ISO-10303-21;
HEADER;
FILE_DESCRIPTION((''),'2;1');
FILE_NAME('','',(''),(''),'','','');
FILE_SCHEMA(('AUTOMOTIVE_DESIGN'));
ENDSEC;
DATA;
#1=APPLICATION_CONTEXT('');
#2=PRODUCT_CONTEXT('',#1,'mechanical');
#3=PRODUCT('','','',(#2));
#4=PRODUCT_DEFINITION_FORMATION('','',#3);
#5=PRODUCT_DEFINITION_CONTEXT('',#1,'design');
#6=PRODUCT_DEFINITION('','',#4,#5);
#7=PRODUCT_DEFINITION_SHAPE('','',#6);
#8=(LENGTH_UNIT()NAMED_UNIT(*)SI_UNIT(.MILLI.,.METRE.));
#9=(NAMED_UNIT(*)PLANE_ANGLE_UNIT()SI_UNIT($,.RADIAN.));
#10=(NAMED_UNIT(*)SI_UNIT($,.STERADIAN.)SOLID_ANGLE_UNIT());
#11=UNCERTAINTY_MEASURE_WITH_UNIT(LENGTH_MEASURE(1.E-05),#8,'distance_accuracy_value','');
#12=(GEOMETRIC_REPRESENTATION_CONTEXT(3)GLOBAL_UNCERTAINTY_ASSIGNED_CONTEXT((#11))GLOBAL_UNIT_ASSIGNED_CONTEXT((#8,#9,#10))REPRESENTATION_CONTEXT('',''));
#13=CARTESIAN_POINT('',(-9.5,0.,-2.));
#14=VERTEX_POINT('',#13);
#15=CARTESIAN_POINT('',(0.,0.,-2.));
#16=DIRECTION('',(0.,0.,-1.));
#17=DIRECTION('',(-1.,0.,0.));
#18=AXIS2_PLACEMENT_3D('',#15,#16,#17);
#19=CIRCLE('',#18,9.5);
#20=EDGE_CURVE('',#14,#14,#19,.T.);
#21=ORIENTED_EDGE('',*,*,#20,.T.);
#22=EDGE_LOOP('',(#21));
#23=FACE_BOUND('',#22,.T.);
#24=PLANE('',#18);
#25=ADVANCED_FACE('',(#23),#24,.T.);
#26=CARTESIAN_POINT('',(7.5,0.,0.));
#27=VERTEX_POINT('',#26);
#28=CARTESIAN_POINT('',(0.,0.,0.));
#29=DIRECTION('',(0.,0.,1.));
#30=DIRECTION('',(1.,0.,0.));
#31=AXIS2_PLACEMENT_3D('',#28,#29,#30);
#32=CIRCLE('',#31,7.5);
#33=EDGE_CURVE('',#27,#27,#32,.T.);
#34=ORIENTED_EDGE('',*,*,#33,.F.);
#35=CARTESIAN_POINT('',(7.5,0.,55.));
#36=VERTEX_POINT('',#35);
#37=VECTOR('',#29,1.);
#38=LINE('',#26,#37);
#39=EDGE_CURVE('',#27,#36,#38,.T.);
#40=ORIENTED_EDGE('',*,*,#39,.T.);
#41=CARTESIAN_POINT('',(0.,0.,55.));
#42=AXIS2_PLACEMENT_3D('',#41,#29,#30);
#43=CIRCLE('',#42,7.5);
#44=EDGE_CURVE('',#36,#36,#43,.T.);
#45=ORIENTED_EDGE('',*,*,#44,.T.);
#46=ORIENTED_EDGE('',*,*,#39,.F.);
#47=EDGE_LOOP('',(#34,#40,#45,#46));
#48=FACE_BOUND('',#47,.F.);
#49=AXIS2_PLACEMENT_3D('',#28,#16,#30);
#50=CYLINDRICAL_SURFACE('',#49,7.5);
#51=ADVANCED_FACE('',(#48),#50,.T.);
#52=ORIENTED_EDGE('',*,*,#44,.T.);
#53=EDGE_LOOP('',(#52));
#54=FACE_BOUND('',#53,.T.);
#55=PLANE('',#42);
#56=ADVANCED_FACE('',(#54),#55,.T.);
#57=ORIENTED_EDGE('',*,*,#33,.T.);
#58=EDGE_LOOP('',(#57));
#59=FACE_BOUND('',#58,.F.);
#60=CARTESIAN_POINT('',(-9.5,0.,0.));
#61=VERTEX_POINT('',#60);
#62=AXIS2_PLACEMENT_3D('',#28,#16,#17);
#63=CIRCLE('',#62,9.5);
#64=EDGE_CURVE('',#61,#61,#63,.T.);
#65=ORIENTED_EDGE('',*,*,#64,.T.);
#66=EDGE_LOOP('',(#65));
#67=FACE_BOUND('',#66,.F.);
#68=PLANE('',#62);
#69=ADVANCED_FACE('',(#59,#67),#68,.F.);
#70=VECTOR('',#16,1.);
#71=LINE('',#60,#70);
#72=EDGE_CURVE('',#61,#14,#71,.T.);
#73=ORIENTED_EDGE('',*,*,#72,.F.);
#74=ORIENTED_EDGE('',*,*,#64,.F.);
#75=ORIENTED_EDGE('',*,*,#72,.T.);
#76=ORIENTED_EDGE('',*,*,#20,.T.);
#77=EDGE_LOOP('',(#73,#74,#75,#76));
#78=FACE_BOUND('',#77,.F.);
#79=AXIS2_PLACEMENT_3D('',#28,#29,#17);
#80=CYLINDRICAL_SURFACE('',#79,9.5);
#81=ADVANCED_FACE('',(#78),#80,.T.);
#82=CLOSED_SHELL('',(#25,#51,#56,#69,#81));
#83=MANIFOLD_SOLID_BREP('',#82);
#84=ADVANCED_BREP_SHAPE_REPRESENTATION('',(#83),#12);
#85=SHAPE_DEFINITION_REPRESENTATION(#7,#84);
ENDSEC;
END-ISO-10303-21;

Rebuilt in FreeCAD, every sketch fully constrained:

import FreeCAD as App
import Part
import Sketcher
Q = App.Units.Quantity

doc = App.newDocument("Part")
body = doc.addObject("PartDesign::Body", "Body")

# Sketch on XY plane
sketch1 = doc.addObject("Sketcher::SketchObject", "Sketch")
body.addObject(sketch1)
sketch1.AttachmentSupport = (doc.XY_Plane, [""])
sketch1.MapMode = "FlatFace"
sketch1.addGeometry(Part.Circle(App.Vector(0, 0, 0), App.Vector(0, 0, 1), 7.5), False)
sketch1.addConstraint(Sketcher.Constraint("Coincident", 0, 3, -1, 1))
sketch1.addConstraint(Sketcher.Constraint("Diameter", 0, Q("15 mm")))
pad1 = doc.addObject("PartDesign::Pad", "Pad")
body.addObject(pad1)
pad1.Profile = sketch1
pad1.Length = 55

# Sketch on XY plane
sketch2 = doc.addObject("Sketcher::SketchObject", "Sketch001")
body.addObject(sketch2)
sketch2.AttachmentSupport = (doc.XY_Plane, [""])
sketch2.MapMode = "FlatFace"
sketch2.addGeometry(Part.Circle(App.Vector(0, 0, 0), App.Vector(0, 0, 1), 9.5), False)
sketch2.addConstraint(Sketcher.Constraint("Coincident", 0, 3, -1, 1))
sketch2.addConstraint(Sketcher.Constraint("Diameter", 0, Q("19 mm")))
pad2 = doc.addObject("PartDesign::Pad", "Pad001")
body.addObject(pad2)
pad2.Profile = sketch2
pad2.Length = 2
pad2.Reversed = True

doc.recompute()
